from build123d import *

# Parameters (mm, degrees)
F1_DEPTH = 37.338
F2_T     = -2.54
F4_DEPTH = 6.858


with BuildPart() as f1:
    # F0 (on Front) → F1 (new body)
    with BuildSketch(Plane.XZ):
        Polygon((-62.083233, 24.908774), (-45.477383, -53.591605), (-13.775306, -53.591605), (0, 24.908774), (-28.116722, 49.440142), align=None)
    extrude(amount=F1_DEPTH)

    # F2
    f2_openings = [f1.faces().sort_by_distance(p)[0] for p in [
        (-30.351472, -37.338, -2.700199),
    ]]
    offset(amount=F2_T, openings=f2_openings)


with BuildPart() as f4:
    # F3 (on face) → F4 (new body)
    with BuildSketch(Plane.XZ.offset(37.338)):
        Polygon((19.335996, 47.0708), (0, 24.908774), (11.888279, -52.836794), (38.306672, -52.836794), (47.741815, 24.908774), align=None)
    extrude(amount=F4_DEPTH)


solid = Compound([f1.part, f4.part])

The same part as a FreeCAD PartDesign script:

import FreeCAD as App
import Part
import Sketcher
Q = App.Units.Quantity


def faces_at(feature, points):
    """Names of the faces that lie closest to the given points."""
    faces = feature.Shape.Faces
    near = lambda p: min(range(len(faces)), key=lambda i: faces[i].distToShape(Part.Vertex(*p))[0])
    return sorted({f"Face{near(p) + 1}" for p in points})

doc = App.newDocument("Part")
body = doc.addObject("PartDesign::Body", "Body")

sketch1 = body.newObject("Sketcher::SketchObject", "Sketch")
sketch1.AttachmentSupport = (doc.getObject("XZ_Plane"), [""])
sketch1.MapMode = "FlatFace"
sketch1.addGeometry([
    Part.LineSegment(App.Vector(-62.083233, 24.908774, 0), App.Vector(-45.477383, -53.591605, 0)),
    Part.LineSegment(App.Vector(-45.477383, -53.591605, 0), App.Vector(-13.775306, -53.591605, 0)),
    Part.LineSegment(App.Vector(-13.775306, -53.591605, 0), App.Vector(0, 24.908774, 0)),
    Part.LineSegment(App.Vector(0, 24.908774, 0), App.Vector(-28.116722, 49.440142, 0)),
    Part.LineSegment(App.Vector(-28.116722, 49.440142, 0), App.Vector(-62.083233, 24.908774, 0)),
], False)
sketch1.addConstraint([
    Sketcher.Constraint("Coincident", 0, 2, 1, 1),
    Sketcher.Constraint("Coincident", 1, 2, 2, 1),
    Sketcher.Constraint("Coincident", 2, 2, 3, 1),
    Sketcher.Constraint("Coincident", 3, 2, 4, 1),
    Sketcher.Constraint("Coincident", 4, 2, 0, 1),
    Sketcher.Constraint("Horizontal", 1),
    Sketcher.Constraint("PointOnObject", 2, 2, -2),
    Sketcher.Constraint("Horizontal", 2, 2, 4, 2),
    Sketcher.Constraint("Distance", 4, 41.898829),
    Sketcher.Constraint("DistanceX", 1, 1, 1, 2, 31.702077),
    Sketcher.Constraint("DistanceX", 3, 2, -1, 1, 28.116722),
    Sketcher.Constraint("DistanceY", 1, 2, 2, 2, 78.500379),
    Sketcher.Constraint("DistanceY", 2, 2, 3, 2, 24.531368),
    Sketcher.Constraint("DistanceX", 0, 2, 3, 2, 17.360661),
    Sketcher.Constraint("DistanceY", 0, 2, -1, 1, 53.591605),
])
pad1 = body.newObject("PartDesign::Pad", "Pad")
pad1.Profile = sketch1
pad1.Length = Q("1.47 in")
doc.recompute()

thickness = body.newObject("PartDesign::Thickness", "Thickness")
thickness.Base = (pad1, faces_at(pad1, [(-31.042, -37.338, -2.076)]))
thickness.Value = Q("0.1 in")
thickness.Reversed = True
thickness.Join = "Arc"
body2 = doc.addObject("PartDesign::Body", "Body001")

sketch2 = body2.newObject("Sketcher::SketchObject", "Sketch001")
sketch2.AttachmentSupport = (doc.getObject("XZ_Plane001"), [""])
sketch2.MapMode = "FlatFace"
sketch2.AttachmentOffset = App.Placement(App.Vector(0, 0, 1.47 * 25.4), App.Rotation())
sketch2.addGeometry([
    Part.LineSegment(App.Vector(19.335996, 47.0708, 0), App.Vector(0, 24.908774, 0)),
    Part.LineSegment(App.Vector(0, 24.908774, 0), App.Vector(11.888279, -52.836794, 0)),
    Part.LineSegment(App.Vector(11.888279, -52.836794, 0), App.Vector(38.306672, -52.836794, 0)),
    Part.LineSegment(App.Vector(38.306672, -52.836794, 0), App.Vector(47.741815, 24.908774, 0)),
    Part.LineSegment(App.Vector(47.741815, 24.908774, 0), App.Vector(19.335996, 47.0708, 0)),
], False)
sketch2.addConstraint([
    Sketcher.Constraint("Coincident", 0, 2, 1, 1),
    Sketcher.Constraint("Coincident", 1, 2, 2, 1),
    Sketcher.Constraint("Coincident", 2, 2, 3, 1),
    Sketcher.Constraint("Coincident", 3, 2, 4, 1),
    Sketcher.Constraint("Coincident", 4, 2, 0, 1),
    Sketcher.Constraint("Horizontal", 2),
    Sketcher.Constraint("PointOnObject", 0, 2, -2),
    Sketcher.Constraint("Horizontal", 0, 2, 3, 2),
    Sketcher.Constraint("DistanceY", -1, 1, 4, 2, 47.0708),
    Sketcher.Constraint("Distance", 1, 78.64925),
    Sketcher.Constraint("DistanceX", 2, 1, 2, 2, 26.418393),
    Sketcher.Constraint("DistanceX", -1, 1, 1, 2, 11.888279),
    Sketcher.Constraint("DistanceX", 4, 2, 3, 2, 28.405819),
    Sketcher.Constraint("Distance", 0, 29.411497),
    Sketcher.Constraint("Distance", 3, 78.315996),
])
pad2 = body2.newObject("PartDesign::Pad", "Pad001")
pad2.Profile = sketch2
pad2.Length = Q("0.27 in")

doc.recompute()
